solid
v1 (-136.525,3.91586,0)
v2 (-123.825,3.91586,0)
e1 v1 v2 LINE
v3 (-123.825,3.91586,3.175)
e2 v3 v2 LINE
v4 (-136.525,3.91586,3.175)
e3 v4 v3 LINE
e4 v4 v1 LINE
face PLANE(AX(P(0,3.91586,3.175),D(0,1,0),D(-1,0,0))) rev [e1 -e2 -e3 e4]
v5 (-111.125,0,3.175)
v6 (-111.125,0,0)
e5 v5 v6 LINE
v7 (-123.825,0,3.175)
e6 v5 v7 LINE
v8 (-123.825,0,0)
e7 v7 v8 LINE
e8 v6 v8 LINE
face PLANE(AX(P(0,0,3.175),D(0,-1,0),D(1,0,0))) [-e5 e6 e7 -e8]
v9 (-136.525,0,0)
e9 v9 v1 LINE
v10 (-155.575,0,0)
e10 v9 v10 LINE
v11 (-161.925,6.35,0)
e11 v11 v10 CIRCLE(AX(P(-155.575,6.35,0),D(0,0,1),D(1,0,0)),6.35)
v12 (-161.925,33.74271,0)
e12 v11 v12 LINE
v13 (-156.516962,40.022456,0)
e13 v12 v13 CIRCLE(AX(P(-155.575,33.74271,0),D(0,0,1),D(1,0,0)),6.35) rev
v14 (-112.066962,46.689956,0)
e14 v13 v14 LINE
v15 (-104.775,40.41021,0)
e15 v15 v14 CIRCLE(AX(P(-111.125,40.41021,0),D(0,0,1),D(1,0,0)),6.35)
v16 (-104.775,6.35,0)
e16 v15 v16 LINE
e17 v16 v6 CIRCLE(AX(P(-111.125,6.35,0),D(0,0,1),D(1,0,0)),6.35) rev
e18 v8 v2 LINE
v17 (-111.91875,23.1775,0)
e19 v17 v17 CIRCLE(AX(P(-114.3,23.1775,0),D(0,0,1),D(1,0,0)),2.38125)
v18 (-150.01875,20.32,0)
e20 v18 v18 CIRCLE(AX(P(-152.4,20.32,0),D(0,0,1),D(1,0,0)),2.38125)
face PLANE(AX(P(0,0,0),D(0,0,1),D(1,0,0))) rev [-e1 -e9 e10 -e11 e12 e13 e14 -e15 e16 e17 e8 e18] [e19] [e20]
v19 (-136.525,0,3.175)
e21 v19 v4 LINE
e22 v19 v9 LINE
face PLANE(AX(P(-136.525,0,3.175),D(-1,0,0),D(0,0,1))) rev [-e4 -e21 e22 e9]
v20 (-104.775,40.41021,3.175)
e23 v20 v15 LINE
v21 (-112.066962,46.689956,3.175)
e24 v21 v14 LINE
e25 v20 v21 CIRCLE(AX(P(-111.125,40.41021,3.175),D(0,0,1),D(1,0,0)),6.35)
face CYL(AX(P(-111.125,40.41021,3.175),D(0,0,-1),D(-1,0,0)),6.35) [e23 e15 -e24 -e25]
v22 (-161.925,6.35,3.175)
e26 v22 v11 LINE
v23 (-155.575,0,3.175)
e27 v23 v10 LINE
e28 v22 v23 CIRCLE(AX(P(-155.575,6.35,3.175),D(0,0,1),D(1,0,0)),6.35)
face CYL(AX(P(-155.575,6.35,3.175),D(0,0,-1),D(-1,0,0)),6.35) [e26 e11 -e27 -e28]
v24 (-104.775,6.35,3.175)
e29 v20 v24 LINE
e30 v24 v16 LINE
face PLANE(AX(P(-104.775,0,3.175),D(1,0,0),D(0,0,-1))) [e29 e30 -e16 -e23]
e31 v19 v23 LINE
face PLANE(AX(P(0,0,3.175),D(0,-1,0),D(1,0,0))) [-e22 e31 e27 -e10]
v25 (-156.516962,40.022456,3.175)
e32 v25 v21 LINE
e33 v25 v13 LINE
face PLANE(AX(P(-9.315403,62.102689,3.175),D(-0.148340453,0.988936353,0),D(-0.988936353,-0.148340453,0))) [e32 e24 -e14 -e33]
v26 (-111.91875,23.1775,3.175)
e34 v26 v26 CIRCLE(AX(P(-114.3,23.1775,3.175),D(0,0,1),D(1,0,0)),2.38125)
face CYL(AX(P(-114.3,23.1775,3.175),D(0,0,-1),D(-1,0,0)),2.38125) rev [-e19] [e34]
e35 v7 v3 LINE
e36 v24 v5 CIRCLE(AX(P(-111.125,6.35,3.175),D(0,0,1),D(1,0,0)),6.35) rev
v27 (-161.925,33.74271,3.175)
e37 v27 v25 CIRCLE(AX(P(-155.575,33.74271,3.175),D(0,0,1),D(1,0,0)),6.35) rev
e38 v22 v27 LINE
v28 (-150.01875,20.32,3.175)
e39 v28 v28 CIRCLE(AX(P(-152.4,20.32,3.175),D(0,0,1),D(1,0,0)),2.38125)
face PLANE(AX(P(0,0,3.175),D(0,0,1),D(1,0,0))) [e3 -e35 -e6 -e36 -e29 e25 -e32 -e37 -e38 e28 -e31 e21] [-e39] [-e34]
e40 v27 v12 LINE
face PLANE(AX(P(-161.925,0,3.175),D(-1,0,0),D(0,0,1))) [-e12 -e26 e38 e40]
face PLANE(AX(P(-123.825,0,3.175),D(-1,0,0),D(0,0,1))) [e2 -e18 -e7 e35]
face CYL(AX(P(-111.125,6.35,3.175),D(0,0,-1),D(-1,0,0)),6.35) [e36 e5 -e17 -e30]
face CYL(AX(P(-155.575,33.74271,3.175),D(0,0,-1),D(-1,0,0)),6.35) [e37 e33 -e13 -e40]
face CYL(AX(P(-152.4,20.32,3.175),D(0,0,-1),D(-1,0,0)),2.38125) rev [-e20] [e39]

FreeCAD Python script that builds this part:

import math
import FreeCAD as App
import Part
import Sketcher
Q = App.Units.Quantity

doc = App.newDocument("Part")
body = doc.addObject("PartDesign::Body", "Body")

# Sketch on XY plane
sketch1 = body.newObject("Sketcher::SketchObject", "Sketch")
sketch1.AttachmentSupport = (doc.getObject("XY_Plane"), [""])
sketch1.MapMode = "FlatFace"
sketch1.addGeometry(Part.LineSegment(App.Vector(-152.4, 40.6, 0), App.Vector(-156.5, 40, 0)), False)
sketch1.addGeometry(Part.ArcOfCircle(Part.Circle(App.Vector(-155.6, 33.7, 0), App.Vector(0, 0, 1), 6.3), math.radians(99), math.radians(180)), False)
sketch1.addGeometry(Part.LineSegment(App.Vector(-161.9, 33.7, 0), App.Vector(-161.9, 6.3, 0)), False)
sketch1.addGeometry(Part.ArcOfCircle(Part.Circle(App.Vector(-155.6, 6.3, 0), App.Vector(0, 0, 1), 6.3), math.radians(180), math.radians(270)), False)
sketch1.addGeometry(Part.LineSegment(App.Vector(-155.6, 0, 0), App.Vector(-136.5, 0, 0)), False)
sketch1.addGeometry(Part.LineSegment(App.Vector(-136.5, 0, 0), App.Vector(-136.5, 3.9, 0)), False)
sketch1.addGeometry(Part.LineSegment(App.Vector(-136.5, 3.9, 0), App.Vector(-123.8, 3.9, 0)), False)
sketch1.addGeometry(Part.LineSegment(App.Vector(-123.8, 3.9, 0), App.Vector(-123.8, 0, 0)), False)
sketch1.addGeometry(Part.LineSegment(App.Vector(-123.8, 0, 0), App.Vector(-111.1, 0, 0)), False)
sketch1.addGeometry(Part.ArcOfCircle(Part.Circle(App.Vector(-111.1, 6.3, 0), App.Vector(0, 0, 1), 6.3), math.radians(-90), math.radians(0)), False)
sketch1.addGeometry(Part.LineSegment(App.Vector(-104.8, 6.3, 0), App.Vector(-104.8, 40.4, 0)), False)
sketch1.addGeometry(Part.ArcOfCircle(Part.Circle(App.Vector(-111.1, 40.4, 0), App.Vector(0, 0, 1), 6.3), math.radians(0), math.radians(99)), False)
sketch1.addGeometry(Part.LineSegment(App.Vector(-112.1, 46.7, 0), App.Vector(-114.3, 46.4, 0)), False)
sketch1.addGeometry(Part.LineSegment(App.Vector(-114.3, 46.4, 0), App.Vector(-152.4, 40.6, 0)), False)
sketch1.addGeometry(Part.ArcOfCircle(Part.Circle(App.Vector(-114.3, 23.2, 0), App.Vector(0, 0, 1), 2.4), math.radians(90), math.radians(270)), False)
sketch1.addGeometry(Part.ArcOfCircle(Part.Circle(App.Vector(-114.3, 23.2, 0), App.Vector(0, 0, 1), 2.4), math.radians(0), math.radians(90)), False)
sketch1.addGeometry(Part.ArcOfCircle(Part.Circle(App.Vector(-114.3, 23.2, 0), App.Vector(0, 0, 1), 2.4), math.radians(-90), math.radians(0)), False)
sketch1.addGeometry(Part.ArcOfCircle(Part.Circle(App.Vector(-152.4, 20.3, 0), App.Vector(0, 0, 1), 2.4), math.radians(90), math.radians(270)), False)
sketch1.addGeometry(Part.ArcOfCircle(Part.Circle(App.Vector(-152.4, 20.3, 0), App.Vector(0, 0, 1), 2.4), math.radians(0), math.radians(90)), False)
sketch1.addGeometry(Part.ArcOfCircle(Part.Circle(App.Vector(-152.4, 20.3, 0), App.Vector(0, 0, 1), 2.4), math.radians(-90), math.radians(0)), False)
sketch1.addConstraint(Sketcher.Constraint("Tangent", 0, 2, 1, 1))
sketch1.addConstraint(Sketcher.Constraint("Tangent", 1, 2, 2, 1))
sketch1.addConstraint(Sketcher.Constraint("Tangent", 2, 2, 3, 1))
sketch1.addConstraint(Sketcher.Constraint("Tangent", 3, 2, 4, 1))
sketch1.addConstraint(Sketcher.Constraint("Coincident", 4, 2, 5, 1))
sketch1.addConstraint(Sketcher.Constraint("Coincident", 5, 2, 6, 1))
sketch1.addConstraint(Sketcher.Constraint("Coincident", 6, 2, 7, 1))
sketch1.addConstraint(Sketcher.Constraint("Coincident", 7, 2, 8, 1))
sketch1.addConstraint(Sketcher.Constraint("Tangent", 8, 2, 9, 1))
sketch1.addConstraint(Sketcher.Constraint("Tangent", 9, 2, 10, 1))
sketch1.addConstraint(Sketcher.Constraint("Tangent", 10, 2, 11, 1))
sketch1.addConstraint(Sketcher.Constraint("Tangent", 11, 2, 12, 1))
sketch1.addConstraint(Sketcher.Constraint("Coincident", 12, 2, 13, 1))
sketch1.addConstraint(Sketcher.Constraint("Coincident", 13, 2, 0, 1))
sketch1.addConstraint(Sketcher.Constraint("Tangent", 14, 1, 15, 2))
sketch1.addConstraint(Sketcher.Constraint("Tangent", 15, 1, 16, 2))
sketch1.addConstraint(Sketcher.Constraint("Tangent", 16, 1, 14, 2))
sketch1.addConstraint(Sketcher.Constraint("Tangent", 17, 1, 18, 2))
sketch1.addConstraint(Sketcher.Constraint("Tangent", 18, 1, 19, 2))
sketch1.addConstraint(Sketcher.Constraint("Tangent", 19, 1, 17, 2))
sketch1.addConstraint(Sketcher.Constraint("Vertical", 2))
sketch1.addConstraint(Sketcher.Constraint("Horizontal", 4))
sketch1.addConstraint(Sketcher.Constraint("Vertical", 5))
sketch1.addConstraint(Sketcher.Constraint("Horizontal", 6))
sketch1.addConstraint(Sketcher.Constraint("Vertical", 7))
sketch1.addConstraint(Sketcher.Constraint("Horizontal", 8))
sketch1.addConstraint(Sketcher.Constraint("Vertical", 10))
sketch1.addConstraint(Sketcher.Constraint("Equal", 1, 3))
sketch1.addConstraint(Sketcher.Constraint("Equal", 3, 9))
sketch1.addConstraint(Sketcher.Constraint("Equal", 9, 11))
sketch1.addConstraint(Sketcher.Constraint("Equal", 16, 17))
sketch1.addConstraint(Sketcher.Constraint("PointOnObject", 3, 2, -1))
sketch1.addConstraint(Sketcher.Constraint("PointOnObject", 7, 2, -1))
sketch1.addConstraint(Sketcher.Constraint("Parallel", 0, 12))
sketch1.addConstraint(Sketcher.Constraint("Parallel", 12, 13))
sketch1.addConstraint(Sketcher.Constraint("Horizontal", 16, 3, 15, 1))
sketch1.addConstraint(Sketcher.Constraint("Horizontal", 19, 3, 18, 1))
sketch1.addConstraint(Sketcher.Constraint("Vertical", 16, 3, 12, 2))
sketch1.addConstraint(Sketcher.Constraint("Vertical", 19, 3, 13, 2))
sketch1.addConstraint(Sketcher.Constraint("Vertical", 12, 2, 14, 1))
sketch1.addConstraint(Sketcher.Constraint("Vertical", 14, 1, 16, 1))
sketch1.addConstraint(Sketcher.Constraint("Vertical", 13, 2, 17, 1))
sketch1.addConstraint(Sketcher.Constraint("Vertical", 17, 1, 19, 1))
sketch1.addConstraint(Sketcher.Constraint("Equal", 6, 8))
sketch1.addConstraint(Sketcher.Constraint("Radius", 1, Q("0.25 in")))
sketch1.addConstraint(Sketcher.Constraint("DistanceX", 6, 1, 6, 2, Q("0.5 in")))
sketch1.addConstraint(Sketcher.Constraint("DistanceX", 17, 3, -1, 1, Q("6 in")))
sketch1.addConstraint(Sketcher.Constraint("Radius", 14, Q("0.09375 in")))
sketch1.addConstraint(Sketcher.Constraint("DistanceX", 4, 1, 4, 2, Q("0.75 in")))
sketch1.addConstraint(Sketcher.Constraint("DistanceX", 14, 3, -1, 1, Q("4.5 in")))
sketch1.addConstraint(Sketcher.Constraint("DistanceY", -1, 1, 17, 3, Q("0.8 in")))
sketch1.addConstraint(Sketcher.Constraint("DistanceY", -1, 1, 13, 2, Q("1.6 in")))
sketch1.addConstraint(Sketcher.Constraint("DistanceX", 1, 3, -1, 1, Q("6.125 in")))
sketch1.addConstraint(Sketcher.Constraint("DistanceY", -1, 1, 12, 2, Q("1.825 in")))
sketch1.addConstraint(Sketcher.Constraint("DistanceY", -1, 1, 14, 3, Q("0.9125 in")))
sketch1.addConstraint(Sketcher.Constraint("DistanceY", 5, 1, 5, 2, 3.91586))
pad1 = body.newObject("PartDesign::Pad", "Pad")
pad1.Profile = sketch1
pad1.Length = Q("0.125 in")

doc.recompute()
